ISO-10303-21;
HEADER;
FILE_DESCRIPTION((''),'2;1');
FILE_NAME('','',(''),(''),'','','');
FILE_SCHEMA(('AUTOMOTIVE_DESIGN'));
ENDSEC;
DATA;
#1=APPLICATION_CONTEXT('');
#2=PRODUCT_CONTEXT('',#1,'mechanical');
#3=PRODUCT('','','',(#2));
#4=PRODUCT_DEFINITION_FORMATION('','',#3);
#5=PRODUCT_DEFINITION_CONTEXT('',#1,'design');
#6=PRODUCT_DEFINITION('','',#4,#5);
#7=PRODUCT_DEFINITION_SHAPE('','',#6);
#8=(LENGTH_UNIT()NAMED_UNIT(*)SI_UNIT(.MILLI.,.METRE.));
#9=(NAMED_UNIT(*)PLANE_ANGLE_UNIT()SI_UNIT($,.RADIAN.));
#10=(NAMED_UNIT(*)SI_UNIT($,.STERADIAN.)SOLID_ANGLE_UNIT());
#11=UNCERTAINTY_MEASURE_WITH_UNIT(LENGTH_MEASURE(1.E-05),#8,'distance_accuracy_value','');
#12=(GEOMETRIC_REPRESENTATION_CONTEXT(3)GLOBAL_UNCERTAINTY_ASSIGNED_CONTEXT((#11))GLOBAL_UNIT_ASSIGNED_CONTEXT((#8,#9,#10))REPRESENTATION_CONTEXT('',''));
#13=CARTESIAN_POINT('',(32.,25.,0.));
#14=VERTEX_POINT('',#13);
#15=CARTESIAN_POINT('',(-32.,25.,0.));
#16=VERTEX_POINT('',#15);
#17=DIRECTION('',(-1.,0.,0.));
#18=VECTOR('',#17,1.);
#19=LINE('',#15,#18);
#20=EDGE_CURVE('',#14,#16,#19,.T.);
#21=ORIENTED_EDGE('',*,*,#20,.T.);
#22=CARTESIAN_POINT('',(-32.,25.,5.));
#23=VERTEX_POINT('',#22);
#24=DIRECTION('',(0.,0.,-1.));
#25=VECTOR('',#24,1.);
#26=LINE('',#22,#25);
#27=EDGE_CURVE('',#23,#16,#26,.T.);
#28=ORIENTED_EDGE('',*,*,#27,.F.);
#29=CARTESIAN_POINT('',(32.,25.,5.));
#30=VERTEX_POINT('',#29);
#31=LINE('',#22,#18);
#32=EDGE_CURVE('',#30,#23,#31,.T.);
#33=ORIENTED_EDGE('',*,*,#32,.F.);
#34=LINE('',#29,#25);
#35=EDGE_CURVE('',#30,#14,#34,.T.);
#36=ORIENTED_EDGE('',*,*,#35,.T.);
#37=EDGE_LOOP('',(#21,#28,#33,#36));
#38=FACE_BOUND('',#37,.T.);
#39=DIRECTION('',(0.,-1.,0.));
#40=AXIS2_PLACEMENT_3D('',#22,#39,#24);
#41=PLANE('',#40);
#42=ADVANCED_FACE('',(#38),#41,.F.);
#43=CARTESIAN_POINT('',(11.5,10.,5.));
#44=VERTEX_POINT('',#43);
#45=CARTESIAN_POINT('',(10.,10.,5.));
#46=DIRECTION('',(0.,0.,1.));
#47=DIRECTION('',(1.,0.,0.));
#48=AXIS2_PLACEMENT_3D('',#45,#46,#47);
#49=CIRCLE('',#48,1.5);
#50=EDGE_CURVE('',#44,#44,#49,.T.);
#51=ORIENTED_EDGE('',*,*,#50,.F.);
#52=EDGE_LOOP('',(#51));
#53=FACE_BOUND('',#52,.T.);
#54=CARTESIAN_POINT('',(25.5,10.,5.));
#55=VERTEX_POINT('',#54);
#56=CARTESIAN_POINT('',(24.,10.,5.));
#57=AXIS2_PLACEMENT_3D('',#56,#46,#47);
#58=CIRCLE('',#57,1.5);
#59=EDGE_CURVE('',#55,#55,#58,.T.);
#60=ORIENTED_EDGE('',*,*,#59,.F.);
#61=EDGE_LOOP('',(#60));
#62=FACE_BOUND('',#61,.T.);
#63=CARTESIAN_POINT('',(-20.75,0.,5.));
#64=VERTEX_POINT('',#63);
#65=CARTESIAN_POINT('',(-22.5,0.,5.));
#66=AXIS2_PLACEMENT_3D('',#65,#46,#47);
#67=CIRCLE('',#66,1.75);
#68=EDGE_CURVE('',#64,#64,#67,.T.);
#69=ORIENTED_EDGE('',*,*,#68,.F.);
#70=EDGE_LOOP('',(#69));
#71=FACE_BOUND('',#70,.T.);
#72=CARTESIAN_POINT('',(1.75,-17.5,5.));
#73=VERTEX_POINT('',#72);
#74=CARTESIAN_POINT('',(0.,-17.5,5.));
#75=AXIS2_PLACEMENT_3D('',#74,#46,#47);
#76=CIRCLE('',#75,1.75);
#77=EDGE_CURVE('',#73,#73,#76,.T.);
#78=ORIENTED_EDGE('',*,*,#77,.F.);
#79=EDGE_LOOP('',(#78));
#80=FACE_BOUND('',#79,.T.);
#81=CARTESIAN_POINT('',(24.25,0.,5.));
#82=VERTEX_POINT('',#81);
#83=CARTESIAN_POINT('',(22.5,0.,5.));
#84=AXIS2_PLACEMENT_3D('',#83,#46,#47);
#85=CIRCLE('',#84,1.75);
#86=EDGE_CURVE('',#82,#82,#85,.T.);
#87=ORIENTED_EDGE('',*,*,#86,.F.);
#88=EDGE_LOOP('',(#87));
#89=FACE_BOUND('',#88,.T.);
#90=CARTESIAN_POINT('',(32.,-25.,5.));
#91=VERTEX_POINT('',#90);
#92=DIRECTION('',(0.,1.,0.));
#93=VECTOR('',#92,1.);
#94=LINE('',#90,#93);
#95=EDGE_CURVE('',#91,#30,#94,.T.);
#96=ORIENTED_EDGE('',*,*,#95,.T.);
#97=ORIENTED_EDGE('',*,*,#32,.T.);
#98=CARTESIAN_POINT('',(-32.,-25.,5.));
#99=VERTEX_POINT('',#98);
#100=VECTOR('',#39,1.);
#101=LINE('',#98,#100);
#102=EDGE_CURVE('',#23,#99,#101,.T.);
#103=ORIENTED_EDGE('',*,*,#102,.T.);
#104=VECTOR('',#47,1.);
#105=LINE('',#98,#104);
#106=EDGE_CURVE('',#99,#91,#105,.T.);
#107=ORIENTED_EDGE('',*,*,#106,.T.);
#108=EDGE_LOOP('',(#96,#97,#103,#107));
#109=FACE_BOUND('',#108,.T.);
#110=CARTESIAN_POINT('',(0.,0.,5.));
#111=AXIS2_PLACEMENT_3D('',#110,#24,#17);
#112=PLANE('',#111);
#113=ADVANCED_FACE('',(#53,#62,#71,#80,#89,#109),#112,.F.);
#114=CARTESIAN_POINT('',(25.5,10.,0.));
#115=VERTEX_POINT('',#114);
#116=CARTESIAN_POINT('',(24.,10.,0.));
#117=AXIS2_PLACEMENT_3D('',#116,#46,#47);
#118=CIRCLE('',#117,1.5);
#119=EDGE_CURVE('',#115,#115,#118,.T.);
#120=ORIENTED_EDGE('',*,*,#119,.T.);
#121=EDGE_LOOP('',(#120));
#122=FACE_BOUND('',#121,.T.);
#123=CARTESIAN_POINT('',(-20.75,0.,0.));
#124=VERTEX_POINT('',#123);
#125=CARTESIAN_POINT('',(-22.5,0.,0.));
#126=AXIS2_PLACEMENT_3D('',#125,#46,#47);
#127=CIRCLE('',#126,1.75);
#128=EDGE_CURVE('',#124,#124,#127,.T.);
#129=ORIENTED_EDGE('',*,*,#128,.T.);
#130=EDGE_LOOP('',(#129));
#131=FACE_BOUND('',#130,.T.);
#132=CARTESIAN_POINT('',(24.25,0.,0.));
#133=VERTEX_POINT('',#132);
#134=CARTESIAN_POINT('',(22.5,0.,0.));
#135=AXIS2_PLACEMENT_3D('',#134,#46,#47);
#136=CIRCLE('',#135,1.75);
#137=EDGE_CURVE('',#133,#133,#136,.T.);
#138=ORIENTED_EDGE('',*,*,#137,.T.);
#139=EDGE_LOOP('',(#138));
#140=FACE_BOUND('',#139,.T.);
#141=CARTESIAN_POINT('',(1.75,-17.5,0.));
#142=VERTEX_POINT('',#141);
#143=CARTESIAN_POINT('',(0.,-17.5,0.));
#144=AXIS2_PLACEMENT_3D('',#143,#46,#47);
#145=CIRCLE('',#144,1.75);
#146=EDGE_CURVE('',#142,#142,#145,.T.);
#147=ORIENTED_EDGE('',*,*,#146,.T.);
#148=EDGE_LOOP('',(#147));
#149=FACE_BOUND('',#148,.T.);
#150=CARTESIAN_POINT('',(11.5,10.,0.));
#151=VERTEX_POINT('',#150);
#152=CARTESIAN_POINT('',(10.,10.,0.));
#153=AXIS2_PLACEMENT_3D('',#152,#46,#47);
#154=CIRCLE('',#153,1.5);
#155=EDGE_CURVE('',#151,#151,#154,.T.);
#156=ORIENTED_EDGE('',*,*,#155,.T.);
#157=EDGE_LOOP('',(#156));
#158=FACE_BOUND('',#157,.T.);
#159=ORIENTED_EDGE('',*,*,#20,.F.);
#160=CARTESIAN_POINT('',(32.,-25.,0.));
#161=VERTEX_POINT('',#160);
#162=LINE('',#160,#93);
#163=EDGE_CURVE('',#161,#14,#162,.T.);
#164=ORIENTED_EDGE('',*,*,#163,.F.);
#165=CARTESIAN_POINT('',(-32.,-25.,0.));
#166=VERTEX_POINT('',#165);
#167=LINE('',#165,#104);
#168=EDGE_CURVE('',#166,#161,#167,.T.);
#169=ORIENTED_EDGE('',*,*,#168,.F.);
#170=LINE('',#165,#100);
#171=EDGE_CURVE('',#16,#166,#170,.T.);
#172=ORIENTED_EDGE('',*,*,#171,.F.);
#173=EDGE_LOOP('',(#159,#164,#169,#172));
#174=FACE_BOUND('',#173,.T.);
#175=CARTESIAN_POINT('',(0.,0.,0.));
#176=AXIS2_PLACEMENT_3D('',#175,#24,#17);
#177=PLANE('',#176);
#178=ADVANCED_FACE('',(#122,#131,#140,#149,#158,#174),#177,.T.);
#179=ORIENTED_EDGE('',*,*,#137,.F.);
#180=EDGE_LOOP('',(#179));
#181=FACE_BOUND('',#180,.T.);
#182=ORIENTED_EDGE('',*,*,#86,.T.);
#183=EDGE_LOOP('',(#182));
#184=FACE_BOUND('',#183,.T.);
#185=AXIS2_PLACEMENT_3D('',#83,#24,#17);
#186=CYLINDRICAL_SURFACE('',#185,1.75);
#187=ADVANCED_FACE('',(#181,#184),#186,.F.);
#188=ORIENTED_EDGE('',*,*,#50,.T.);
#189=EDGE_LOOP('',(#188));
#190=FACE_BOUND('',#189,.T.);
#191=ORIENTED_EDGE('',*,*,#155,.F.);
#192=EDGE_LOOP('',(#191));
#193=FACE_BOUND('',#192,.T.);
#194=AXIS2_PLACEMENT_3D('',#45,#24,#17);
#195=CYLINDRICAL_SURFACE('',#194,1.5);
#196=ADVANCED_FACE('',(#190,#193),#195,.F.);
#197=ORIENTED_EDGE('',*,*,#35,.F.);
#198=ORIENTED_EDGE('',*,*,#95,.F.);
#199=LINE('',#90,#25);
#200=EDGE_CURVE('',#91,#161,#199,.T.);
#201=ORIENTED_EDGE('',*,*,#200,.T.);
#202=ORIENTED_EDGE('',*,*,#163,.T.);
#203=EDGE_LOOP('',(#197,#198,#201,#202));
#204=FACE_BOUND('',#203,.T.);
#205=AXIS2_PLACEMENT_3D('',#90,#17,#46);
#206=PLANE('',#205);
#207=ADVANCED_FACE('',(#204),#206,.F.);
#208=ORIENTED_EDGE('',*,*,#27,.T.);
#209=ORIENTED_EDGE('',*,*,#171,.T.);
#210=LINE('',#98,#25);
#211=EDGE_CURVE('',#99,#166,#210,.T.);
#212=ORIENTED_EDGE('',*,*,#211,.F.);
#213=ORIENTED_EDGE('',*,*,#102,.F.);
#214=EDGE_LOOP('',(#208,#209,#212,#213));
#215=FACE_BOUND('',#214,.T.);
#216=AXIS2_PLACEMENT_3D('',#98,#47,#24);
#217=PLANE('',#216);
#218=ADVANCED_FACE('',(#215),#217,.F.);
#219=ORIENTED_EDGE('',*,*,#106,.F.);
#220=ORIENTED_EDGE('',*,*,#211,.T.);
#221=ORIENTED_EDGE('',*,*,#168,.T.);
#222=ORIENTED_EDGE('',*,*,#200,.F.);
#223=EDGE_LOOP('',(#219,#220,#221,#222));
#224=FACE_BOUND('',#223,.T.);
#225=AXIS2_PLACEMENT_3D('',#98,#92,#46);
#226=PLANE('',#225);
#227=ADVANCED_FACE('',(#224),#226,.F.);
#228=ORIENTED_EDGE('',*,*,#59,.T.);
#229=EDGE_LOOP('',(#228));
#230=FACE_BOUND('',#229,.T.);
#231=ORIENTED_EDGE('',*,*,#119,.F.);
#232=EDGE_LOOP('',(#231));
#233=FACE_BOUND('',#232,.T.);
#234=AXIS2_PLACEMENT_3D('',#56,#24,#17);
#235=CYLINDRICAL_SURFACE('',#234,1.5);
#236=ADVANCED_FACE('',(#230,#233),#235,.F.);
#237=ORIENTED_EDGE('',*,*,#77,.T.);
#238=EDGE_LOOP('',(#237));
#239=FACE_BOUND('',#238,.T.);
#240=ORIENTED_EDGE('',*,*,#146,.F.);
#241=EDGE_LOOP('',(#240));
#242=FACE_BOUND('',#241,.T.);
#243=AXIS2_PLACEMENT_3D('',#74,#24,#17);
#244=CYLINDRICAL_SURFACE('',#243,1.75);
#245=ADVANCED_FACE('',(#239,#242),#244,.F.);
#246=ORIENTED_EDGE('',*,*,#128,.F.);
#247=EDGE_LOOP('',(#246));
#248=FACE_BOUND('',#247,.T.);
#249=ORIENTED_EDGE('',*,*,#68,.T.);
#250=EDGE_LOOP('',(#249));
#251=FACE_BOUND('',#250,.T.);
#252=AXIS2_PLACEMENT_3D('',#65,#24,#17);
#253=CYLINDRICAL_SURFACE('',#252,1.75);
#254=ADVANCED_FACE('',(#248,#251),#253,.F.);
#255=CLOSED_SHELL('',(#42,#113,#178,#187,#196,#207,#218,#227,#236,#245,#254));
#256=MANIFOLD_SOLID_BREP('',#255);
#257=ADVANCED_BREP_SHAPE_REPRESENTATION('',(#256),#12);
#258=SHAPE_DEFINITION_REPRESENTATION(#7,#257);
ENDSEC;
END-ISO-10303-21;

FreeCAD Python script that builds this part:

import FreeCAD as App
import Part
import Sketcher
Q = App.Units.Quantity

doc = App.newDocument("Part")
body = doc.addObject("PartDesign::Body", "Body")

sketch1 = body.newObject("Sketcher::SketchObject", "Sketch")
sketch1.AttachmentSupport = (doc.getObject("XY_Plane"), [""])
sketch1.MapMode = "FlatFace"
sketch1.addGeometry(Part.LineSegment(App.Vector(-32, 25, 0), App.Vector(-32, -25, 0)), False)
sketch1.addGeometry(Part.LineSegment(App.Vector(-32, -25, 0), App.Vector(32, -25, 0)), False)
sketch1.addGeometry(Part.LineSegment(App.Vector(32, -25, 0), App.Vector(32, 25, 0)), False)
sketch1.addGeometry(Part.LineSegment(App.Vector(32, 25, 0), App.Vector(-32, 25, 0)), False)
sketch1.addGeometry(Part.Circle(App.Vector(0, -17.5, 0), App.Vector(0, 0, 1), 1.8), False)
sketch1.addGeometry(Part.Circle(App.Vector(-22.5, 0, 0), App.Vector(0, 0, 1), 1.8), False)
sketch1.addGeometry(Part.Circle(App.Vector(22.5, 0, 0), App.Vector(0, 0, 1), 1.8), False)
sketch1.addGeometry(Part.Circle(App.Vector(10, 10, 0), App.Vector(0, 0, 1), 1.5), False)
sketch1.addGeometry(Part.Circle(App.Vector(24, 10, 0), App.Vector(0, 0, 1), 1.5), False)
sketch1.addConstraint(Sketcher.Constraint("Coincident", 0, 2, 1, 1))
sketch1.addConstraint(Sketcher.Constraint("Coincident", 1, 2, 2, 1))
sketch1.addConstraint(Sketcher.Constraint("Coincident", 2, 2, 3, 1))
sketch1.addConstraint(Sketcher.Constraint("Coincident", 3, 2, 0, 1))
sketch1.addConstraint(Sketcher.Constraint("Vertical", 0))
sketch1.addConstraint(Sketcher.Constraint("Horizontal", 1))
sketch1.addConstraint(Sketcher.Constraint("Vertical", 2))
sketch1.addConstraint(Sketcher.Constraint("Horizontal", 3))
sketch1.addConstraint(Sketcher.Constraint("Equal", 4, 5))
sketch1.addConstraint(Sketcher.Constraint("Equal", 5, 6))
sketch1.addConstraint(Sketcher.Constraint("Equal", 7, 8))
sketch1.addConstraint(Sketcher.Constraint("Symmetric", 5, 3, 6, 3, -1, 1))
sketch1.addConstraint(Sketcher.Constraint("Symmetric", 0, 2, 2, 2, -1, 1))
sketch1.addConstraint(Sketcher.Constraint("PointOnObject", 4, 3, -2))
sketch1.addConstraint(Sketcher.Constraint("PointOnObject", 5, 3, -1))
sketch1.addConstraint(Sketcher.Constraint("Horizontal", 7, 3, 8, 3))
sketch1.addConstraint(Sketcher.Constraint("Diameter", 7, Q("3 mm")))
sketch1.addConstraint(Sketcher.Constraint("Diameter", 4, Q("3.5 mm")))
sketch1.addConstraint(Sketcher.Constraint("DistanceX", 1, 1, 1, 2, Q("64 mm")))
sketch1.addConstraint(Sketcher.Constraint("DistanceY", 0, 2, 0, 1, Q("50 mm")))
sketch1.addConstraint(Sketcher.Constraint("DistanceX", -1, 1, 7, 3, Q("10 mm")))
sketch1.addConstraint(Sketcher.Constraint("DistanceY", -1, 1, 7, 3, Q("10 mm")))
sketch1.addConstraint(Sketcher.Constraint("DistanceX", -1, 1, 8, 3, Q("24 mm")))
sketch1.addConstraint(Sketcher.Constraint("DistanceX", 5, 3, 6, 3, Q("45 mm")))
sketch1.addConstraint(Sketcher.Constraint("DistanceY", 4, 3, -1, 1, Q("17.5 mm")))
pad1 = body.newObject("PartDesign::Pad", "Pad")
pad1.Profile = sketch1
pad1.Length = 5

doc.recompute()
